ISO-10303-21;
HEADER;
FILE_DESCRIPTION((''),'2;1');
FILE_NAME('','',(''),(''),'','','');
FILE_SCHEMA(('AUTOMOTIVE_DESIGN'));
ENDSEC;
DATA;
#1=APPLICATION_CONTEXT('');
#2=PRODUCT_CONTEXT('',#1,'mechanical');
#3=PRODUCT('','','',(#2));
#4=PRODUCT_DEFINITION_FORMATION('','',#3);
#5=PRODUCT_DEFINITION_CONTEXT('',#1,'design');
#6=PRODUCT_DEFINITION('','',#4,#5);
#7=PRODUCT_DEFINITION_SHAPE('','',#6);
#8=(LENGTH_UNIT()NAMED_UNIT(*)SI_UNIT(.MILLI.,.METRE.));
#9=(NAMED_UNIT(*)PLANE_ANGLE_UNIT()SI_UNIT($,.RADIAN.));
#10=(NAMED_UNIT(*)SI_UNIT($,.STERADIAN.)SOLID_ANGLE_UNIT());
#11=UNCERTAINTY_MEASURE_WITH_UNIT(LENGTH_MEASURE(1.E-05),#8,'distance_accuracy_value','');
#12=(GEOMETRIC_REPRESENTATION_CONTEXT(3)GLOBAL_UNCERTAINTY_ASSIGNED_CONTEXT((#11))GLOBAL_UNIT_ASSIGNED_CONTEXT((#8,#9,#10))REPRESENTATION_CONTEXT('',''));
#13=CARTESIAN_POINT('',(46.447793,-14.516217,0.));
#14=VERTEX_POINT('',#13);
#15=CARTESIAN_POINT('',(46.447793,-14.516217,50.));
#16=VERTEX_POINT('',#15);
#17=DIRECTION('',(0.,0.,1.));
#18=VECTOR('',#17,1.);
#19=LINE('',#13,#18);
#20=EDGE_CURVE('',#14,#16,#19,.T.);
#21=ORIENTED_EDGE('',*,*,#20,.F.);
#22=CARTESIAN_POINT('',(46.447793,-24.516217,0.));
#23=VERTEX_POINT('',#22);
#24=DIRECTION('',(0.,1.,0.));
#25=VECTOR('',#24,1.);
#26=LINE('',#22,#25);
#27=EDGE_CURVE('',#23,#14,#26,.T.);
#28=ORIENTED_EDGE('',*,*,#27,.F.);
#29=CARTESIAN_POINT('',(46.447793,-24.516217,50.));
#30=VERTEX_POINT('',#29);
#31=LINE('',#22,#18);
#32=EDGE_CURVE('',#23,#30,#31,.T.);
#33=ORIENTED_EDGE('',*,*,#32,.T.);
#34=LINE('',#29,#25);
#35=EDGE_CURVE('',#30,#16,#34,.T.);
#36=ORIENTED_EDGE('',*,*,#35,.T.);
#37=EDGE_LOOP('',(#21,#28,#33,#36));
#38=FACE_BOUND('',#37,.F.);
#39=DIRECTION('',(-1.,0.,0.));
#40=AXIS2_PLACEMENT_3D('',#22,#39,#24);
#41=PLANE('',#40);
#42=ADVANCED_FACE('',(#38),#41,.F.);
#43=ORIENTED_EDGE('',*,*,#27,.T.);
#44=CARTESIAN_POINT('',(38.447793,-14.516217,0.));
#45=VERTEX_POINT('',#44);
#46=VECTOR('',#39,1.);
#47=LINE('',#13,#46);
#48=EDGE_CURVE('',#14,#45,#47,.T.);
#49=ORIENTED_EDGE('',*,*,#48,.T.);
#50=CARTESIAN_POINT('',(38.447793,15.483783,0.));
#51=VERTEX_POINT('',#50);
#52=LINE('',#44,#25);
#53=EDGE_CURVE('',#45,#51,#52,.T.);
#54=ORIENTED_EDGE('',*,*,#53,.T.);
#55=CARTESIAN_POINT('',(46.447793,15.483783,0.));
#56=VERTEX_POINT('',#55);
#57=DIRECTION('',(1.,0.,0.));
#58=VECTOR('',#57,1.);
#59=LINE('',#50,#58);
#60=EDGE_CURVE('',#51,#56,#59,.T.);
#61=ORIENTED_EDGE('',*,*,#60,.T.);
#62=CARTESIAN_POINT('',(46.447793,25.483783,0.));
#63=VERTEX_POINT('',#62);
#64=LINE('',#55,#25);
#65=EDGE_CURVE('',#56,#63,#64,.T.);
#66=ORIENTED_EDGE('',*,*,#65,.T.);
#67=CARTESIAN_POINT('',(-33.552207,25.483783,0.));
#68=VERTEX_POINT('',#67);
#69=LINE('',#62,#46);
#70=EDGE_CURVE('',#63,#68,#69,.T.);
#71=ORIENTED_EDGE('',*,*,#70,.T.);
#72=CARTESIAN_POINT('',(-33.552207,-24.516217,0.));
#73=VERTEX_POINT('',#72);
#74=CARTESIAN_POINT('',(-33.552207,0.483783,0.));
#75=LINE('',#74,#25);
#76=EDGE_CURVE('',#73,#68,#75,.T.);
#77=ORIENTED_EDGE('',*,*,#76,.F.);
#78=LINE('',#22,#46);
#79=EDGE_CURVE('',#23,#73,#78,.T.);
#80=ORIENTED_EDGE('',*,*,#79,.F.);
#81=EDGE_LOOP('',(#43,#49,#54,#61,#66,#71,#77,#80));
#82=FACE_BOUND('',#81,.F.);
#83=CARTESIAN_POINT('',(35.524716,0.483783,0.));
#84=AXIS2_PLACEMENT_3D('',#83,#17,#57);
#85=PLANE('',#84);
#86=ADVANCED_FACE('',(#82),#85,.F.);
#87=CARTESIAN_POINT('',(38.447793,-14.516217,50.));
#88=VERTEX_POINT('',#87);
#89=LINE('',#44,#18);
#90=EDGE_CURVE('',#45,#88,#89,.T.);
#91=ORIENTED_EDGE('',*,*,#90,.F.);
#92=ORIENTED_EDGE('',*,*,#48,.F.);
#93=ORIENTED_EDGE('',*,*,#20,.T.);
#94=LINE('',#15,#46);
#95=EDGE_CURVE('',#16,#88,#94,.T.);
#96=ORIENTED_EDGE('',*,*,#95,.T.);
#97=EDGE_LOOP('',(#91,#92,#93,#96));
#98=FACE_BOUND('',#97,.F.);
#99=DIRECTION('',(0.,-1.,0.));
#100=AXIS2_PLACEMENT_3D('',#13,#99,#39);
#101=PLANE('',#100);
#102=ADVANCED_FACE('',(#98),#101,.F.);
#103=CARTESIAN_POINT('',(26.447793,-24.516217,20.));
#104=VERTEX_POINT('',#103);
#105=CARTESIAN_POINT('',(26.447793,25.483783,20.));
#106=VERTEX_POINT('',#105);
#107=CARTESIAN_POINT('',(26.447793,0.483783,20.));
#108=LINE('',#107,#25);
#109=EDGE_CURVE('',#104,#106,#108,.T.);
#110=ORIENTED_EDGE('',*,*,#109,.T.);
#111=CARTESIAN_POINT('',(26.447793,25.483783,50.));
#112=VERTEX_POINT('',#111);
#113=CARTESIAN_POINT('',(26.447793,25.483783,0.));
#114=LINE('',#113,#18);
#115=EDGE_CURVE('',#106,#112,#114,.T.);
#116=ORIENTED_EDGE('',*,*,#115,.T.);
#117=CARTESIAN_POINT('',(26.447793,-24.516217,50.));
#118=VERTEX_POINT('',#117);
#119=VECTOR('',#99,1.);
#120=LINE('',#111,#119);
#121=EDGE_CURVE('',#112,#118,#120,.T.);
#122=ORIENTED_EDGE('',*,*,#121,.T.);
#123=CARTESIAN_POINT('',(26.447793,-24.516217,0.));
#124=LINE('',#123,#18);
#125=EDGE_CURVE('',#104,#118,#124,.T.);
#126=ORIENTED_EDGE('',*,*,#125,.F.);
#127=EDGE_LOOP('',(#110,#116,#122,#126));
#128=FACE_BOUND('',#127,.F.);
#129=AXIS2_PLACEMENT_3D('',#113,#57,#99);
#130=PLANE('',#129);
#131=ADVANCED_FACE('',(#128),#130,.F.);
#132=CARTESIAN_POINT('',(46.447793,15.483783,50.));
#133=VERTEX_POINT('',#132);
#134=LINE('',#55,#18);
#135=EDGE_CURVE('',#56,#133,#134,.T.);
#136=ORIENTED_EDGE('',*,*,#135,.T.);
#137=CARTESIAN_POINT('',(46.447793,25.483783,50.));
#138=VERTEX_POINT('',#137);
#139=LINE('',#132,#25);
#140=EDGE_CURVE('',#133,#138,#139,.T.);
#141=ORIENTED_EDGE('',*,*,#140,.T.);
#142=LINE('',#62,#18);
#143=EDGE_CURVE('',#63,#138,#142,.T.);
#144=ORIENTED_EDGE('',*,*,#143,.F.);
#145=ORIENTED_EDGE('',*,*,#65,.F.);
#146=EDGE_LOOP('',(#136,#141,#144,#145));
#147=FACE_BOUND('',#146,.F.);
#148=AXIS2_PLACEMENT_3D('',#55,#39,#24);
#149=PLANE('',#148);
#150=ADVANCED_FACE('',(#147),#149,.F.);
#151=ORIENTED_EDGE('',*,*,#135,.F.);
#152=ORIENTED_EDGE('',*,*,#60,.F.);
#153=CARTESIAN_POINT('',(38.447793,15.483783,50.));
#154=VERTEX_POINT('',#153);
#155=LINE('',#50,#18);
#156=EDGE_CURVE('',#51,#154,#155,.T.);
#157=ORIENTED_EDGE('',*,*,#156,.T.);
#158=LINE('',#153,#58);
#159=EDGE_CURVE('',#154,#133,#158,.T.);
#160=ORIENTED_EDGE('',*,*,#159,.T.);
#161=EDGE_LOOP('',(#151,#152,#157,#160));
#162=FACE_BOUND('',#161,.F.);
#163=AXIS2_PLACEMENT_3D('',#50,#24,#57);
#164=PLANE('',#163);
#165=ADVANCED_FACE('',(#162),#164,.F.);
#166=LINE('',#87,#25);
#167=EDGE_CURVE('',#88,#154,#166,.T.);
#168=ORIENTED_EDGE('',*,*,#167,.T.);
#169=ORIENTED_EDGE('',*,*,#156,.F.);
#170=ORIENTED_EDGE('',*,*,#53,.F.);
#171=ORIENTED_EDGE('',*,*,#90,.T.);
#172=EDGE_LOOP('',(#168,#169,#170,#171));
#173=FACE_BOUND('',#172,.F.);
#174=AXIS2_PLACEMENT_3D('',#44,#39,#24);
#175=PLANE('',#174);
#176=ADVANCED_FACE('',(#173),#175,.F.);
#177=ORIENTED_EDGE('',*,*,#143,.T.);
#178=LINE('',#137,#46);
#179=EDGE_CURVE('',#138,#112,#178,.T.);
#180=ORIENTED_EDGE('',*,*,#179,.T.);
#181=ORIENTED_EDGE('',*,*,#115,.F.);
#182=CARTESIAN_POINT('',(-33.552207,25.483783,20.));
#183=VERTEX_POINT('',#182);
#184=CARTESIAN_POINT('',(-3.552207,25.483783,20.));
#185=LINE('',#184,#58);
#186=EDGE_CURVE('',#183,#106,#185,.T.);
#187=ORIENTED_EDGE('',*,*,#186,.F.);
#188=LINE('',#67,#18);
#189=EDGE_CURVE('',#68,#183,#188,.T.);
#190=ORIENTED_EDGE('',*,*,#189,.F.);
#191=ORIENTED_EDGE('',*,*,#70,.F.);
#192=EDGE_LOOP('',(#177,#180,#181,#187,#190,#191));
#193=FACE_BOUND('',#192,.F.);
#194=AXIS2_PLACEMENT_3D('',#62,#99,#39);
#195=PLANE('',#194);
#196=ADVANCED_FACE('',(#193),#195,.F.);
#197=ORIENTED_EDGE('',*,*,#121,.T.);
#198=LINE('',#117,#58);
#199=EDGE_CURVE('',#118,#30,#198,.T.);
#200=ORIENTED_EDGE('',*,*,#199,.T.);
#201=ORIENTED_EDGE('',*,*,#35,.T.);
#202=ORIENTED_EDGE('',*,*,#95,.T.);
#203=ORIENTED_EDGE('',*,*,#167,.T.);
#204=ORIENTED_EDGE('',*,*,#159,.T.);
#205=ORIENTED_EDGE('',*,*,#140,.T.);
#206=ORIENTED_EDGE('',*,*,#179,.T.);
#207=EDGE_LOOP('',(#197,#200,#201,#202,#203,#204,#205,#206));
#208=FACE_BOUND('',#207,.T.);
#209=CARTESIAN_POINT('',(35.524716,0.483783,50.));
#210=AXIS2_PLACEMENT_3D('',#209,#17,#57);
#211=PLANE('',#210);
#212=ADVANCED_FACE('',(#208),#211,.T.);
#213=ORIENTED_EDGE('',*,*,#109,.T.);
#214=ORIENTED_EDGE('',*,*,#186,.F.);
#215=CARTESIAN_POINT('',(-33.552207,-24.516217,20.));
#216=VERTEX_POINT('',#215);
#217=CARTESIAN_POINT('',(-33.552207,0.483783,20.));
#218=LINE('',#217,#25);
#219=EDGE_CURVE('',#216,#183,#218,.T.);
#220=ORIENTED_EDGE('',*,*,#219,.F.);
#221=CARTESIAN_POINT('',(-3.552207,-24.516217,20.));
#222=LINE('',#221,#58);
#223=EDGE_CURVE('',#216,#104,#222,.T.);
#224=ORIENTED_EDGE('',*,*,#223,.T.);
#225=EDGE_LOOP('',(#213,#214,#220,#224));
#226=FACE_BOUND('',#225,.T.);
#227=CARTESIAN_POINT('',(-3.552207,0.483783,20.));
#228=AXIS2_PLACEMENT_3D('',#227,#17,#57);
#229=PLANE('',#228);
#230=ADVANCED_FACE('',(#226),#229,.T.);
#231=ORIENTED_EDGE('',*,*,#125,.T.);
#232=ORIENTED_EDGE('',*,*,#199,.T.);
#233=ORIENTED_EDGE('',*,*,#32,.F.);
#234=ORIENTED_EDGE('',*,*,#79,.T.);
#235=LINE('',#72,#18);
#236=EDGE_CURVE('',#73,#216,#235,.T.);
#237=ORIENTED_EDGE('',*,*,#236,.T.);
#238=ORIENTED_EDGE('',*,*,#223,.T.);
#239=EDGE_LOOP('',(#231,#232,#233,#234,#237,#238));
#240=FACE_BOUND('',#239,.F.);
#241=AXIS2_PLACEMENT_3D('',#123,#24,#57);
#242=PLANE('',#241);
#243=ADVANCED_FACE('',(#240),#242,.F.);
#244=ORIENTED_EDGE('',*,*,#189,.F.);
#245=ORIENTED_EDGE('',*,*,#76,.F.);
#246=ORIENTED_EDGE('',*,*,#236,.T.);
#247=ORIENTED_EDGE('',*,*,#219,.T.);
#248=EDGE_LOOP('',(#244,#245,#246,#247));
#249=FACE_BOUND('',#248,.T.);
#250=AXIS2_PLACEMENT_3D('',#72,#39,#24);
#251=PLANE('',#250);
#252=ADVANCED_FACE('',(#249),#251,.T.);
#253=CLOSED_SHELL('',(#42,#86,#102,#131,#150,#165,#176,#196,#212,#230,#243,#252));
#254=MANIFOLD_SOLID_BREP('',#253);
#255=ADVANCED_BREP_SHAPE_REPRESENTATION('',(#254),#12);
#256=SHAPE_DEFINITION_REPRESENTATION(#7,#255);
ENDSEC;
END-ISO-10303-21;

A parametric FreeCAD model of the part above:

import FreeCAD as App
import Part
import Sketcher

V = App.Vector


def add_polygon(sketch, points):
    """Adds a closed chain of lines whose ends are joined by coincident constraints."""
    first, n = sketch.GeometryCount, len(points)
    for a, b in zip(points, points[1:] + points[:1]):
        sketch.addGeometry(Part.LineSegment(App.Vector(*a, 0), App.Vector(*b, 0)), False)
    for i in range(n):
        sketch.addConstraint(Sketcher.Constraint("Coincident", first + i, 2, first + (i + 1) % n, 1))

doc = App.newDocument("Part")
body = doc.addObject("PartDesign::Body", "Body")

sketch1 = doc.addObject("Sketcher::SketchObject", "Sketch")
body.addObject(sketch1)
sketch1.AttachmentSupport = (doc.XY_Plane, [""])
sketch1.MapMode = "FlatFace"
add_polygon(sketch1, [(-34, 25), (-34, -25), (26, -25), (26, 25)])
sketch1.addConstraint([
    Sketcher.Constraint("Vertical", 0),
    Sketcher.Constraint("Horizontal", 1),
    Sketcher.Constraint("Vertical", 2),
    Sketcher.Constraint("Horizontal", 3),
    Sketcher.Constraint("DistanceX", 1, 1, 1, 2, 60.0),
    Sketcher.Constraint("DistanceY", 0, 2, 0, 1, 50.0),
    Sketcher.Constraint("DistanceX", 0, 2, -1, 1, 33.552207),
    Sketcher.Constraint("DistanceY", 0, 2, -1, 1, 24.516217),
])
pad1 = doc.addObject("PartDesign::Pad", "Pad")
body.addObject(pad1)
pad1.Profile = sketch1
pad1.Length = 20

sketch2 = doc.addObject("Sketcher::SketchObject", "Sketch001")
body.addObject(sketch2)
sketch2.AttachmentSupport = (doc.XY_Plane, [""])
sketch2.MapMode = "FlatFace"
add_polygon(sketch2, [(46, 25), (26, 25), (26, -25), (46, -25), (46, -15), (38, -15), (38, 15), (46, 15)])
sketch2.addConstraint([
    Sketcher.Constraint("Horizontal", 0),
    Sketcher.Constraint("Vertical", 1),
    Sketcher.Constraint("Horizontal", 2),
    Sketcher.Constraint("Vertical", 3),
    Sketcher.Constraint("Horizontal", 4),
    Sketcher.Constraint("Vertical", 5),
    Sketcher.Constraint("Horizontal", 6),
    Sketcher.Constraint("Vertical", 7),
    Sketcher.Constraint("Vertical", 3, 2, 6, 2),
    Sketcher.Constraint("Equal", 3, 7),
    Sketcher.Constraint("DistanceX", 0, 2, 0, 1, 20.0),
    Sketcher.Constraint("DistanceX", 4, 2, 4, 1, 8.0),
    Sketcher.Constraint("DistanceY", 1, 2, 1, 1, 50.0),
    Sketcher.Constraint("DistanceY", 3, 1, 3, 2, 10.0),
    Sketcher.Constraint("DistanceX", -1, 1, 0, 2, 26.447793),
    Sketcher.Constraint("DistanceY", -1, 1, 0, 2, 25.483783),
])
pad2 = doc.addObject("PartDesign::Pad", "Pad001")
body.addObject(pad2)
pad2.Profile = sketch2
pad2.Length = 50

doc.recompute()
